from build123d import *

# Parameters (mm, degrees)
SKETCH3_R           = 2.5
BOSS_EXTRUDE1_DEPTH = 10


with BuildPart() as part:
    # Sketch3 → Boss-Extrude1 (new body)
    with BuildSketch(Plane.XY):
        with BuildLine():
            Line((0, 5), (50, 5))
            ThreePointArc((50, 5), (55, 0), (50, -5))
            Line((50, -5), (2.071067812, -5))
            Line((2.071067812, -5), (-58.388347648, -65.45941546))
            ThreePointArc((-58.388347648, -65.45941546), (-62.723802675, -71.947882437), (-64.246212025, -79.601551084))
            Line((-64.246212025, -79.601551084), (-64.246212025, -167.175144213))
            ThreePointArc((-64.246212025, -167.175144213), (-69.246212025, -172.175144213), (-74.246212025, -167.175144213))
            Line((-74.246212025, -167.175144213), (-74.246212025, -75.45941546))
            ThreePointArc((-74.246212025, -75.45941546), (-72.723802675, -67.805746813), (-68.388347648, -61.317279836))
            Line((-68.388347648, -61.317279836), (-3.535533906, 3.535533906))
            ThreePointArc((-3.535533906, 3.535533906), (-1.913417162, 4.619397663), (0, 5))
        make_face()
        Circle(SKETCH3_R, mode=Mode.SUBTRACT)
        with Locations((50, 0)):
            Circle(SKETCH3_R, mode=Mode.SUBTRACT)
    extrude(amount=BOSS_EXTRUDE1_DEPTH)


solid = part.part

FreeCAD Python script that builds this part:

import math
import FreeCAD as App
import Part
import Sketcher
from FreeCAD import Vector
Q = App.Units.Quantity

doc = App.newDocument("Part")
body = doc.addObject("PartDesign::Body", "Body")

# Sketch on XY plane
sketch1 = body.newObject("Sketcher::SketchObject", "Sketch")
sketch1.AttachmentSupport = (doc.getObject("XY_Plane"), [""])
sketch1.MapMode = "FlatFace"
sketch1.addGeometry([
    Part.LineSegment(Vector(50, 5, 0), Vector(0, 5, 0)),  # 0
    Part.ArcOfCircle(Part.Circle(Vector(0, 0, 0), Vector(0, 0, 1), 5), math.radians(90), math.radians(135)),  # 1
    Part.LineSegment(Vector(-3.535534, 3.535534, 0), Vector(-68.388348, -61.31728, 0)),  # 2
    Part.ArcOfCircle(Part.Circle(Vector(-54.246212, -75.459415, 0), Vector(0, 0, 1), 20), math.radians(135), math.radians(180)),  # 3
    Part.LineSegment(Vector(-74.246212, -75.459415, 0), Vector(-74.246212, -167.175144, 0)),  # 4
    Part.ArcOfCircle(Part.Circle(Vector(-69.246212, -167.175144, 0), Vector(0, 0, 1), 5), math.radians(180), math.radians(360)),  # 5
    Part.LineSegment(Vector(-64.246212, -167.175144, 0), Vector(-64.246212, -79.601551, 0)),  # 6
    Part.ArcOfCircle(Part.Circle(Vector(-44.246212, -79.601551, 0), Vector(0, 0, 1), 20), math.radians(135), math.radians(180)),  # 7
    Part.LineSegment(Vector(-58.388348, -65.459415, 0), Vector(2.071068, -5, 0)),  # 8
    Part.LineSegment(Vector(2.071068, -5, 0), Vector(50, -5, 0)),  # 9
    Part.ArcOfCircle(Part.Circle(Vector(50, 0, 0), Vector(0, 0, 1), 5), math.radians(-90), math.radians(90)),  # 10
    Part.Circle(Vector(50, 0, 0), Vector(0, 0, 1), 2.5),  # 11
    Part.Circle(Vector(0, 0, 0), Vector(0, 0, 1), 2.5),  # 12
], False)
sketch1.addConstraint([
    Sketcher.Constraint("Tangent", 0, 2, 1, 1),
    Sketcher.Constraint("Tangent", 1, 2, 2, 1),
    Sketcher.Constraint("Tangent", 2, 2, 3, 1),
    Sketcher.Constraint("Tangent", 3, 2, 4, 1),
    Sketcher.Constraint("Tangent", 4, 2, 5, 1),
    Sketcher.Constraint("Tangent", 5, 2, 6, 1),
    Sketcher.Constraint("Tangent", 6, 2, 7, 2),
    Sketcher.Constraint("Tangent", 7, 1, 8, 1),
    Sketcher.Constraint("Coincident", 8, 2, 9, 1),
    Sketcher.Constraint("Tangent", 9, 2, 10, 1),
    Sketcher.Constraint("Tangent", 10, 2, 0, 1),
    Sketcher.Constraint("Horizontal", 0),
    Sketcher.Constraint("Vertical", 4),
    Sketcher.Constraint("Vertical", 6),
    Sketcher.Constraint("Horizontal", 9),
    Sketcher.Constraint("Coincident", 1, 3, -1, 1),
    Sketcher.Constraint("Coincident", 12, 3, -1, 1),
    Sketcher.Constraint("Coincident", 11, 3, 10, 3),
    Sketcher.Constraint("Equal", 1, 5),
    Sketcher.Constraint("Equal", 3, 7),
    Sketcher.Constraint("Equal", 5, 10),
    Sketcher.Constraint("Equal", 11, 12),
    Sketcher.Constraint("Parallel", 2, 8),
    Sketcher.Constraint("Diameter", 11, Q("5 mm")),
    Sketcher.Constraint("Radius", 1, Q("5 mm")),
    Sketcher.Constraint("Radius", 3, Q("20 mm")),
    Sketcher.Constraint("DistanceX", 0, 2, 0, 1, Q("50 mm")),
    Sketcher.Constraint("Angle", 2, Q("-135 deg")),
    Sketcher.Constraint("DistanceY", 3, 3, 7, 1, Q("10 mm")),
    Sketcher.Constraint("DistanceY", 4, 2, 4, 1, Q("91.715729 mm")),
    Sketcher.Constraint("Distance", 2, Q("91.715729 mm")),
])
pad1 = body.newObject("PartDesign::Pad", "Pad")
pad1.Profile = sketch1
pad1.Length = 10

doc.recompute()
